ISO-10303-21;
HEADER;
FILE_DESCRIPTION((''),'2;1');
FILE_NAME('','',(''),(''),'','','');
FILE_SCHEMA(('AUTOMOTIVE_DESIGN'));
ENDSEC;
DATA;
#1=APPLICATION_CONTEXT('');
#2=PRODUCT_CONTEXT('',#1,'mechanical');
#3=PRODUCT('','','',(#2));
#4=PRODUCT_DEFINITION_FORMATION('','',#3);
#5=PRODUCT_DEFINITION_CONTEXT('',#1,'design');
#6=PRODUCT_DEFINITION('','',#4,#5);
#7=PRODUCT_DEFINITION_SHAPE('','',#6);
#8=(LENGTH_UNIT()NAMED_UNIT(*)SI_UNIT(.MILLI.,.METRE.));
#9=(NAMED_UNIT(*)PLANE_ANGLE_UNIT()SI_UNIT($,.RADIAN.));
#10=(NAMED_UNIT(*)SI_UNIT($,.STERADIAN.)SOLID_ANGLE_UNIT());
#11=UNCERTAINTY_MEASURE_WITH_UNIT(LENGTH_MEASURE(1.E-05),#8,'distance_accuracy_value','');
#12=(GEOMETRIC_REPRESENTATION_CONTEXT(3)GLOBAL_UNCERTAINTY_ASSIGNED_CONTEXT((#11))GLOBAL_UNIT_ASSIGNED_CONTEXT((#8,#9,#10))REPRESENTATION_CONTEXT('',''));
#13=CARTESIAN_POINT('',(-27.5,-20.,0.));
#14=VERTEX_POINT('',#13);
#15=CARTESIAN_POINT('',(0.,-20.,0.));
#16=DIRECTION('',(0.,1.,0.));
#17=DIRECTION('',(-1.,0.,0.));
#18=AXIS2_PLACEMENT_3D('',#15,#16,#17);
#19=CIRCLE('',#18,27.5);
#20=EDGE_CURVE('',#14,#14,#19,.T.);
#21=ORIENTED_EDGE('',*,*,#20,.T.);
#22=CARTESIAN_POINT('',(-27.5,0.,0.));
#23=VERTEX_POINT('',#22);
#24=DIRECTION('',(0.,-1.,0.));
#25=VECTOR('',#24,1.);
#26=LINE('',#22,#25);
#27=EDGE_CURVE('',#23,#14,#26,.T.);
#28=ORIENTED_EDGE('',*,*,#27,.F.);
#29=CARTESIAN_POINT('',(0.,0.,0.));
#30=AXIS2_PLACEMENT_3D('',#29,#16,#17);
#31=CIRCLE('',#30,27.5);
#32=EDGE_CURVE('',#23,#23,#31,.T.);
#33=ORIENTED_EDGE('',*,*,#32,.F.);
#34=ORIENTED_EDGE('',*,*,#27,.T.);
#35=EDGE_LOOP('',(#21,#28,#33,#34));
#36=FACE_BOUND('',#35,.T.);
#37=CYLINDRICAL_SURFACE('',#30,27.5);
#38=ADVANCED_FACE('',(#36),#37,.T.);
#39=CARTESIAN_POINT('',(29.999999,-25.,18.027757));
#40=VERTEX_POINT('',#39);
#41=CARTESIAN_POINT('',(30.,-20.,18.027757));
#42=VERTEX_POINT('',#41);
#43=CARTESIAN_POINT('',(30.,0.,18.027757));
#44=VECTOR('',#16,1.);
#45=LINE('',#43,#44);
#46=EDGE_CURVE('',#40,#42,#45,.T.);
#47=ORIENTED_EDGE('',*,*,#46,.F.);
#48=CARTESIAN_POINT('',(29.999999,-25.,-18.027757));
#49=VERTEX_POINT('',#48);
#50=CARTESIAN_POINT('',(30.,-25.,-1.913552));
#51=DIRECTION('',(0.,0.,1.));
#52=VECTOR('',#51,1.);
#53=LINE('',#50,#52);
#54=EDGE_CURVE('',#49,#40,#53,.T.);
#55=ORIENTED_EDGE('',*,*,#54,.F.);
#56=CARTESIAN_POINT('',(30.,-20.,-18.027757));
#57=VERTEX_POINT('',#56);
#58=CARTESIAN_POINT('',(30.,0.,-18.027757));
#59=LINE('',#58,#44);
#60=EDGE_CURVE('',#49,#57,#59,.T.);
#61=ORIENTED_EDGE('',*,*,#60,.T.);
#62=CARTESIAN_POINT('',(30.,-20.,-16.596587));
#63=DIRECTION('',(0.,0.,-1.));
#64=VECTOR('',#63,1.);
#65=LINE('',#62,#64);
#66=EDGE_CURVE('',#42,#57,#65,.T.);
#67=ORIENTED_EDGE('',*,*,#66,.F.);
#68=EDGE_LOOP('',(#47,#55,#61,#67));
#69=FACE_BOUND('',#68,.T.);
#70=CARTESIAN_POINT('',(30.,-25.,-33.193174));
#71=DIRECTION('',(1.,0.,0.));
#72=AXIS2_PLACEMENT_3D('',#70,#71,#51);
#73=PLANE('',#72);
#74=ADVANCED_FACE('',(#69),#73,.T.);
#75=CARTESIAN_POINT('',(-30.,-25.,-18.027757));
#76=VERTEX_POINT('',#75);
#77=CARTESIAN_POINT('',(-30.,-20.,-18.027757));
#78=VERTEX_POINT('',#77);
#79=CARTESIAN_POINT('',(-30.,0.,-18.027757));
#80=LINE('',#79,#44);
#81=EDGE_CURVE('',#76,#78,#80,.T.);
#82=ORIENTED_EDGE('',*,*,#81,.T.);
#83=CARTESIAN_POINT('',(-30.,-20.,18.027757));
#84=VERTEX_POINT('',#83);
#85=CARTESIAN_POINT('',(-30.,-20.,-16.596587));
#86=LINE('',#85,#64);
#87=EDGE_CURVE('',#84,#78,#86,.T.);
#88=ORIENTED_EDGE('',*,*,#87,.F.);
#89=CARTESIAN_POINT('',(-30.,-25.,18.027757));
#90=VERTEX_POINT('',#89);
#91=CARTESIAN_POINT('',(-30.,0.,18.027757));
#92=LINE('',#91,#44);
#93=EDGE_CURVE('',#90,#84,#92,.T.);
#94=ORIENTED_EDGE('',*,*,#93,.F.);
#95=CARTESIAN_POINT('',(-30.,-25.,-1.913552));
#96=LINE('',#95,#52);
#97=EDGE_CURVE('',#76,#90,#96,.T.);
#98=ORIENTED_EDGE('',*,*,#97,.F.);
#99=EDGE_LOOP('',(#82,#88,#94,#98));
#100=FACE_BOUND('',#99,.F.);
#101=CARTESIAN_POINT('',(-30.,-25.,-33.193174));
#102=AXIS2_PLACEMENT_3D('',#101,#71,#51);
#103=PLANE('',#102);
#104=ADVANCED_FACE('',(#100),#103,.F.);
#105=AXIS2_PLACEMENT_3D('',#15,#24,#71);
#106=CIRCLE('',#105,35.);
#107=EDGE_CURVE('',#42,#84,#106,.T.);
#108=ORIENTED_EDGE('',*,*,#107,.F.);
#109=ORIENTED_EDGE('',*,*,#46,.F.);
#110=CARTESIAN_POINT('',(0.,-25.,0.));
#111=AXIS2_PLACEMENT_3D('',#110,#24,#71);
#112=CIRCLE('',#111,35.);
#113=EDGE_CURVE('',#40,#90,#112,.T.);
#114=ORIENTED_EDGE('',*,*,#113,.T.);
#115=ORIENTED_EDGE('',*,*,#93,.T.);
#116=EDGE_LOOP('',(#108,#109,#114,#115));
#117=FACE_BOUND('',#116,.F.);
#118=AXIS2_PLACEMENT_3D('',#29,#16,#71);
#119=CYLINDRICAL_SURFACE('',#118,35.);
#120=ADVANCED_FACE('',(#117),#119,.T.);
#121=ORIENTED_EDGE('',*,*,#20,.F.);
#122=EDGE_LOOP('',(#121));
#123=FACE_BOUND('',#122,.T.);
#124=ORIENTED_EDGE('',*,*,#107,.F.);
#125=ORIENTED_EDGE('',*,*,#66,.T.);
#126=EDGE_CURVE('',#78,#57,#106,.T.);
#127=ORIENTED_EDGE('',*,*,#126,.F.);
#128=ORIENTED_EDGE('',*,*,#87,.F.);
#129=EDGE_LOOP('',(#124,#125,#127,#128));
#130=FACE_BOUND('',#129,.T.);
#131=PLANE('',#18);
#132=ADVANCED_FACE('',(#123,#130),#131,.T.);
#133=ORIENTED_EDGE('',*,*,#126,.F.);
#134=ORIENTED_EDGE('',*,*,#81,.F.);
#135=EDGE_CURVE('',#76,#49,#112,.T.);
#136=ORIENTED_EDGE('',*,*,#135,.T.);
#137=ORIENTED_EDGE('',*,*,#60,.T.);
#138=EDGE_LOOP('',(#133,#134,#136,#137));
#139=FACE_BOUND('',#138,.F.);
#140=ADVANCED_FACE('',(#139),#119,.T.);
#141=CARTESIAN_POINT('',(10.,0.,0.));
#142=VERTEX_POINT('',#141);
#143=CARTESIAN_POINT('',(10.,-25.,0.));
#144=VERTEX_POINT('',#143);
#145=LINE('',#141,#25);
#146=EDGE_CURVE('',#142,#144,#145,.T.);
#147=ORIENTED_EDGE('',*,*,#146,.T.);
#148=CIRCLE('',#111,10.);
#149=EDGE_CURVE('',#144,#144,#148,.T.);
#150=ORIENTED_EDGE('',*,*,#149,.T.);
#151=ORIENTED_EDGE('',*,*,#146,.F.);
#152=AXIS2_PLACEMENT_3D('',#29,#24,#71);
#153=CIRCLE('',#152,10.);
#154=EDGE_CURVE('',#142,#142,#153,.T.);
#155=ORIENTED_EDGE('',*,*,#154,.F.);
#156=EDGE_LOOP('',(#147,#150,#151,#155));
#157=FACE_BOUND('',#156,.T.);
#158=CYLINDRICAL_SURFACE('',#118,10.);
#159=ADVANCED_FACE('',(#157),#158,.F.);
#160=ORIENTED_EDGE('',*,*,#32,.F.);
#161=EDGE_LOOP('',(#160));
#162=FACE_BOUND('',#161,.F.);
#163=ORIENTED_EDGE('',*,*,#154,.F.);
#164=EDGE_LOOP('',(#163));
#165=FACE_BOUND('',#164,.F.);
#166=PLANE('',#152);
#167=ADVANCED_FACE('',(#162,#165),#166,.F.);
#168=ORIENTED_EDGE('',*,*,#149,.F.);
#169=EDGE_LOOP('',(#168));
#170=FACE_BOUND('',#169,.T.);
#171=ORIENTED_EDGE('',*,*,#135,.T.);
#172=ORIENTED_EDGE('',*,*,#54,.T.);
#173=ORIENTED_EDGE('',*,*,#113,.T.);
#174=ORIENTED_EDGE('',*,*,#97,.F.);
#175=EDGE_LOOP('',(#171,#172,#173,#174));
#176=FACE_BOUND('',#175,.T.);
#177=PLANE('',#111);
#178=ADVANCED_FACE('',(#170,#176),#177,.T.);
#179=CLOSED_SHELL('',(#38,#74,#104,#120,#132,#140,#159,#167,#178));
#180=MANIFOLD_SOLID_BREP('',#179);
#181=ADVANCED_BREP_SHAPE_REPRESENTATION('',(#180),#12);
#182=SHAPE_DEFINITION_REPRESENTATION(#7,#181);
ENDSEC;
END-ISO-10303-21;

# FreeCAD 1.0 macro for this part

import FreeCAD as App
import Part
import Sketcher

V = App.Vector


def add_polygon(sketch, points):
    """Adds a closed chain of lines whose ends are joined by coincident constraints."""
    first, n = sketch.GeometryCount, len(points)
    for a, b in zip(points, points[1:] + points[:1]):
        sketch.addGeometry(Part.LineSegment(App.Vector(*a, 0), App.Vector(*b, 0)), False)
    for i in range(n):
        sketch.addConstraint(Sketcher.Constraint("Coincident", first + i, 2, first + (i + 1) % n, 1))

doc = App.newDocument("Part")
body = doc.addObject("PartDesign::Body", "Body")

# Sketch on XZ plane
sketch1 = body.newObject("Sketcher::SketchObject", "Sketch")
sketch1.AttachmentSupport = (doc.getObject("XZ_Plane"), [""])
sketch1.MapMode = "FlatFace"
sketch1.addGeometry([
    Part.Circle(V(0, 0, 0), V(0, 0, 1), 35),
    Part.Circle(V(0, 0, 0), V(0, 0, 1), 10),
], False)
sketch1.addConstraint([
    Sketcher.Constraint("Coincident", 0, 3, -1, 1),
    Sketcher.Constraint("Coincident", 1, 3, -1, 1),
    Sketcher.Constraint("Diameter", 0, 70.0),
    Sketcher.Constraint("Diameter", 1, 20.0),
])
pad1 = body.newObject("PartDesign::Pad", "Pad")
pad1.Profile = sketch1
pad1.Length = 25

# Sketch on XZ plane
sketch2 = body.newObject("Sketcher::SketchObject", "Sketch001")
sketch2.AttachmentSupport = (doc.getObject("XZ_Plane"), [""])
sketch2.MapMode = "FlatFace"
sketch2.addGeometry([
    Part.Circle(V(0, 0, 0), V(0, 0, 1), 35),
    Part.Circle(V(0, 0, 0), V(0, 0, 1), 28),
], False)
sketch2.addConstraint([
    Sketcher.Constraint("Coincident", 0, 3, -1, 1),
    Sketcher.Constraint("Coincident", 1, 3, -1, 1),
    Sketcher.Constraint("Diameter", 0, 70.0),
    Sketcher.Constraint("Diameter", 1, 55.0),
])
pocket1 = body.newObject("PartDesign::Pocket", "Pocket")
pocket1.Profile = sketch2
pocket1.Length = 20
pocket1.Reversed = True

# Sketch on XZ plane
sketch3 = body.newObject("Sketcher::SketchObject", "Sketch002")
sketch3.AttachmentSupport = (doc.getObject("XZ_Plane"), [""])
sketch3.MapMode = "FlatFace"
sketch3.AttachmentOffset = App.Placement(V(0, 0, 25), App.Rotation())
add_polygon(sketch3, [(-43, 29), (-43, -33), (-30, -33), (-30, 29)])  # lines 0-3
add_polygon(sketch3, [(30, 29), (30, -33), (43, -33), (43, 29)])  # lines 4-7
sketch3.addConstraint([
    Sketcher.Constraint("Vertical", 0),
    Sketcher.Constraint("Horizontal", 1),
    Sketcher.Constraint("Vertical", 2),
    Sketcher.Constraint("Horizontal", 3),
    Sketcher.Constraint("Vertical", 4),
    Sketcher.Constraint("Horizontal", 5),
    Sketcher.Constraint("Vertical", 6),
    Sketcher.Constraint("Horizontal", 7),
    Sketcher.Constraint("Symmetric", 1, 2, 4, 2, -2),
    Sketcher.Constraint("Symmetric", 3, 2, 6, 2, -2),
    Sketcher.Constraint("DistanceX", 1, 2, -1, 1, 30.0),
    Sketcher.Constraint("DistanceX", 1, 1, 1, 2, 13.364931),
    Sketcher.Constraint("DistanceY", 0, 2, 0, 1, 62.559245),
    Sketcher.Constraint("DistanceY", -1, 1, 2, 2, 29.36607),
])
pocket2 = body.newObject("PartDesign::Pocket", "Pocket001")
pocket2.Profile = sketch3
pocket2.Length = 25

doc.recompute()
